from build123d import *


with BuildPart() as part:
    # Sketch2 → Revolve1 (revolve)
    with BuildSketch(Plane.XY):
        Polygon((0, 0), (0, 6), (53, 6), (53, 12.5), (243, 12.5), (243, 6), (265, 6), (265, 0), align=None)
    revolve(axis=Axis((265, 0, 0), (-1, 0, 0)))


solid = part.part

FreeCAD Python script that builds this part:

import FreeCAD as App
import Part
import Sketcher

V = App.Vector


def add_polygon(sketch, points):
    """Adds a closed chain of lines whose ends are joined by coincident constraints."""
    first, n = sketch.GeometryCount, len(points)
    for a, b in zip(points, points[1:] + points[:1]):
        sketch.addGeometry(Part.LineSegment(App.Vector(*a, 0), App.Vector(*b, 0)), False)
    for i in range(n):
        sketch.addConstraint(Sketcher.Constraint("Coincident", first + i, 2, first + (i + 1) % n, 1))

doc = App.newDocument("Part")
body = doc.addObject("PartDesign::Body", "Body")

# Sketch on XY plane
sketch1 = body.newObject("Sketcher::SketchObject", "Sketch")
sketch1.AttachmentSupport = (doc.getObject("XY_Plane"), [""])
sketch1.MapMode = "FlatFace"
add_polygon(sketch1, [(0, 6), (0, 0), (265, 0), (265, 6), (243, 6), (243, 12.5), (53, 12.5), (53, 6)])  # lines 0-7
sketch1.addConstraint(Sketcher.Constraint("Vertical", 0))
sketch1.addConstraint(Sketcher.Constraint("Horizontal", 1))
sketch1.addConstraint(Sketcher.Constraint("Vertical", 2))
sketch1.addConstraint(Sketcher.Constraint("Horizontal", 3))
sketch1.addConstraint(Sketcher.Constraint("Vertical", 4))
sketch1.addConstraint(Sketcher.Constraint("Horizontal", 5))
sketch1.addConstraint(Sketcher.Constraint("Vertical", 6))
sketch1.addConstraint(Sketcher.Constraint("Horizontal", 7))
sketch1.addConstraint(Sketcher.Constraint("Coincident", 0, 2, -1, 1))
sketch1.addConstraint(Sketcher.Constraint("Horizontal", 3, 2, 6, 2))
sketch1.addConstraint(Sketcher.Constraint("DistanceX", 1, 1, 1, 2, 265.0))
sketch1.addConstraint(Sketcher.Constraint("DistanceX", 3, 2, 3, 1, 22.0))
sketch1.addConstraint(Sketcher.Constraint("DistanceX", 5, 2, 5, 1, 190.0))
sketch1.addConstraint(Sketcher.Constraint("DistanceY", 0, 2, 0, 1, 6.0))
sketch1.addConstraint(Sketcher.Constraint("DistanceY", 4, 1, 4, 2, 6.5))
revolution = body.newObject("PartDesign::Revolution", "Revolution")
revolution.Profile = sketch1
revolution.ReferenceAxis = (sketch1, ["H_Axis"])
revolution.Angle = 360

doc.recompute()
